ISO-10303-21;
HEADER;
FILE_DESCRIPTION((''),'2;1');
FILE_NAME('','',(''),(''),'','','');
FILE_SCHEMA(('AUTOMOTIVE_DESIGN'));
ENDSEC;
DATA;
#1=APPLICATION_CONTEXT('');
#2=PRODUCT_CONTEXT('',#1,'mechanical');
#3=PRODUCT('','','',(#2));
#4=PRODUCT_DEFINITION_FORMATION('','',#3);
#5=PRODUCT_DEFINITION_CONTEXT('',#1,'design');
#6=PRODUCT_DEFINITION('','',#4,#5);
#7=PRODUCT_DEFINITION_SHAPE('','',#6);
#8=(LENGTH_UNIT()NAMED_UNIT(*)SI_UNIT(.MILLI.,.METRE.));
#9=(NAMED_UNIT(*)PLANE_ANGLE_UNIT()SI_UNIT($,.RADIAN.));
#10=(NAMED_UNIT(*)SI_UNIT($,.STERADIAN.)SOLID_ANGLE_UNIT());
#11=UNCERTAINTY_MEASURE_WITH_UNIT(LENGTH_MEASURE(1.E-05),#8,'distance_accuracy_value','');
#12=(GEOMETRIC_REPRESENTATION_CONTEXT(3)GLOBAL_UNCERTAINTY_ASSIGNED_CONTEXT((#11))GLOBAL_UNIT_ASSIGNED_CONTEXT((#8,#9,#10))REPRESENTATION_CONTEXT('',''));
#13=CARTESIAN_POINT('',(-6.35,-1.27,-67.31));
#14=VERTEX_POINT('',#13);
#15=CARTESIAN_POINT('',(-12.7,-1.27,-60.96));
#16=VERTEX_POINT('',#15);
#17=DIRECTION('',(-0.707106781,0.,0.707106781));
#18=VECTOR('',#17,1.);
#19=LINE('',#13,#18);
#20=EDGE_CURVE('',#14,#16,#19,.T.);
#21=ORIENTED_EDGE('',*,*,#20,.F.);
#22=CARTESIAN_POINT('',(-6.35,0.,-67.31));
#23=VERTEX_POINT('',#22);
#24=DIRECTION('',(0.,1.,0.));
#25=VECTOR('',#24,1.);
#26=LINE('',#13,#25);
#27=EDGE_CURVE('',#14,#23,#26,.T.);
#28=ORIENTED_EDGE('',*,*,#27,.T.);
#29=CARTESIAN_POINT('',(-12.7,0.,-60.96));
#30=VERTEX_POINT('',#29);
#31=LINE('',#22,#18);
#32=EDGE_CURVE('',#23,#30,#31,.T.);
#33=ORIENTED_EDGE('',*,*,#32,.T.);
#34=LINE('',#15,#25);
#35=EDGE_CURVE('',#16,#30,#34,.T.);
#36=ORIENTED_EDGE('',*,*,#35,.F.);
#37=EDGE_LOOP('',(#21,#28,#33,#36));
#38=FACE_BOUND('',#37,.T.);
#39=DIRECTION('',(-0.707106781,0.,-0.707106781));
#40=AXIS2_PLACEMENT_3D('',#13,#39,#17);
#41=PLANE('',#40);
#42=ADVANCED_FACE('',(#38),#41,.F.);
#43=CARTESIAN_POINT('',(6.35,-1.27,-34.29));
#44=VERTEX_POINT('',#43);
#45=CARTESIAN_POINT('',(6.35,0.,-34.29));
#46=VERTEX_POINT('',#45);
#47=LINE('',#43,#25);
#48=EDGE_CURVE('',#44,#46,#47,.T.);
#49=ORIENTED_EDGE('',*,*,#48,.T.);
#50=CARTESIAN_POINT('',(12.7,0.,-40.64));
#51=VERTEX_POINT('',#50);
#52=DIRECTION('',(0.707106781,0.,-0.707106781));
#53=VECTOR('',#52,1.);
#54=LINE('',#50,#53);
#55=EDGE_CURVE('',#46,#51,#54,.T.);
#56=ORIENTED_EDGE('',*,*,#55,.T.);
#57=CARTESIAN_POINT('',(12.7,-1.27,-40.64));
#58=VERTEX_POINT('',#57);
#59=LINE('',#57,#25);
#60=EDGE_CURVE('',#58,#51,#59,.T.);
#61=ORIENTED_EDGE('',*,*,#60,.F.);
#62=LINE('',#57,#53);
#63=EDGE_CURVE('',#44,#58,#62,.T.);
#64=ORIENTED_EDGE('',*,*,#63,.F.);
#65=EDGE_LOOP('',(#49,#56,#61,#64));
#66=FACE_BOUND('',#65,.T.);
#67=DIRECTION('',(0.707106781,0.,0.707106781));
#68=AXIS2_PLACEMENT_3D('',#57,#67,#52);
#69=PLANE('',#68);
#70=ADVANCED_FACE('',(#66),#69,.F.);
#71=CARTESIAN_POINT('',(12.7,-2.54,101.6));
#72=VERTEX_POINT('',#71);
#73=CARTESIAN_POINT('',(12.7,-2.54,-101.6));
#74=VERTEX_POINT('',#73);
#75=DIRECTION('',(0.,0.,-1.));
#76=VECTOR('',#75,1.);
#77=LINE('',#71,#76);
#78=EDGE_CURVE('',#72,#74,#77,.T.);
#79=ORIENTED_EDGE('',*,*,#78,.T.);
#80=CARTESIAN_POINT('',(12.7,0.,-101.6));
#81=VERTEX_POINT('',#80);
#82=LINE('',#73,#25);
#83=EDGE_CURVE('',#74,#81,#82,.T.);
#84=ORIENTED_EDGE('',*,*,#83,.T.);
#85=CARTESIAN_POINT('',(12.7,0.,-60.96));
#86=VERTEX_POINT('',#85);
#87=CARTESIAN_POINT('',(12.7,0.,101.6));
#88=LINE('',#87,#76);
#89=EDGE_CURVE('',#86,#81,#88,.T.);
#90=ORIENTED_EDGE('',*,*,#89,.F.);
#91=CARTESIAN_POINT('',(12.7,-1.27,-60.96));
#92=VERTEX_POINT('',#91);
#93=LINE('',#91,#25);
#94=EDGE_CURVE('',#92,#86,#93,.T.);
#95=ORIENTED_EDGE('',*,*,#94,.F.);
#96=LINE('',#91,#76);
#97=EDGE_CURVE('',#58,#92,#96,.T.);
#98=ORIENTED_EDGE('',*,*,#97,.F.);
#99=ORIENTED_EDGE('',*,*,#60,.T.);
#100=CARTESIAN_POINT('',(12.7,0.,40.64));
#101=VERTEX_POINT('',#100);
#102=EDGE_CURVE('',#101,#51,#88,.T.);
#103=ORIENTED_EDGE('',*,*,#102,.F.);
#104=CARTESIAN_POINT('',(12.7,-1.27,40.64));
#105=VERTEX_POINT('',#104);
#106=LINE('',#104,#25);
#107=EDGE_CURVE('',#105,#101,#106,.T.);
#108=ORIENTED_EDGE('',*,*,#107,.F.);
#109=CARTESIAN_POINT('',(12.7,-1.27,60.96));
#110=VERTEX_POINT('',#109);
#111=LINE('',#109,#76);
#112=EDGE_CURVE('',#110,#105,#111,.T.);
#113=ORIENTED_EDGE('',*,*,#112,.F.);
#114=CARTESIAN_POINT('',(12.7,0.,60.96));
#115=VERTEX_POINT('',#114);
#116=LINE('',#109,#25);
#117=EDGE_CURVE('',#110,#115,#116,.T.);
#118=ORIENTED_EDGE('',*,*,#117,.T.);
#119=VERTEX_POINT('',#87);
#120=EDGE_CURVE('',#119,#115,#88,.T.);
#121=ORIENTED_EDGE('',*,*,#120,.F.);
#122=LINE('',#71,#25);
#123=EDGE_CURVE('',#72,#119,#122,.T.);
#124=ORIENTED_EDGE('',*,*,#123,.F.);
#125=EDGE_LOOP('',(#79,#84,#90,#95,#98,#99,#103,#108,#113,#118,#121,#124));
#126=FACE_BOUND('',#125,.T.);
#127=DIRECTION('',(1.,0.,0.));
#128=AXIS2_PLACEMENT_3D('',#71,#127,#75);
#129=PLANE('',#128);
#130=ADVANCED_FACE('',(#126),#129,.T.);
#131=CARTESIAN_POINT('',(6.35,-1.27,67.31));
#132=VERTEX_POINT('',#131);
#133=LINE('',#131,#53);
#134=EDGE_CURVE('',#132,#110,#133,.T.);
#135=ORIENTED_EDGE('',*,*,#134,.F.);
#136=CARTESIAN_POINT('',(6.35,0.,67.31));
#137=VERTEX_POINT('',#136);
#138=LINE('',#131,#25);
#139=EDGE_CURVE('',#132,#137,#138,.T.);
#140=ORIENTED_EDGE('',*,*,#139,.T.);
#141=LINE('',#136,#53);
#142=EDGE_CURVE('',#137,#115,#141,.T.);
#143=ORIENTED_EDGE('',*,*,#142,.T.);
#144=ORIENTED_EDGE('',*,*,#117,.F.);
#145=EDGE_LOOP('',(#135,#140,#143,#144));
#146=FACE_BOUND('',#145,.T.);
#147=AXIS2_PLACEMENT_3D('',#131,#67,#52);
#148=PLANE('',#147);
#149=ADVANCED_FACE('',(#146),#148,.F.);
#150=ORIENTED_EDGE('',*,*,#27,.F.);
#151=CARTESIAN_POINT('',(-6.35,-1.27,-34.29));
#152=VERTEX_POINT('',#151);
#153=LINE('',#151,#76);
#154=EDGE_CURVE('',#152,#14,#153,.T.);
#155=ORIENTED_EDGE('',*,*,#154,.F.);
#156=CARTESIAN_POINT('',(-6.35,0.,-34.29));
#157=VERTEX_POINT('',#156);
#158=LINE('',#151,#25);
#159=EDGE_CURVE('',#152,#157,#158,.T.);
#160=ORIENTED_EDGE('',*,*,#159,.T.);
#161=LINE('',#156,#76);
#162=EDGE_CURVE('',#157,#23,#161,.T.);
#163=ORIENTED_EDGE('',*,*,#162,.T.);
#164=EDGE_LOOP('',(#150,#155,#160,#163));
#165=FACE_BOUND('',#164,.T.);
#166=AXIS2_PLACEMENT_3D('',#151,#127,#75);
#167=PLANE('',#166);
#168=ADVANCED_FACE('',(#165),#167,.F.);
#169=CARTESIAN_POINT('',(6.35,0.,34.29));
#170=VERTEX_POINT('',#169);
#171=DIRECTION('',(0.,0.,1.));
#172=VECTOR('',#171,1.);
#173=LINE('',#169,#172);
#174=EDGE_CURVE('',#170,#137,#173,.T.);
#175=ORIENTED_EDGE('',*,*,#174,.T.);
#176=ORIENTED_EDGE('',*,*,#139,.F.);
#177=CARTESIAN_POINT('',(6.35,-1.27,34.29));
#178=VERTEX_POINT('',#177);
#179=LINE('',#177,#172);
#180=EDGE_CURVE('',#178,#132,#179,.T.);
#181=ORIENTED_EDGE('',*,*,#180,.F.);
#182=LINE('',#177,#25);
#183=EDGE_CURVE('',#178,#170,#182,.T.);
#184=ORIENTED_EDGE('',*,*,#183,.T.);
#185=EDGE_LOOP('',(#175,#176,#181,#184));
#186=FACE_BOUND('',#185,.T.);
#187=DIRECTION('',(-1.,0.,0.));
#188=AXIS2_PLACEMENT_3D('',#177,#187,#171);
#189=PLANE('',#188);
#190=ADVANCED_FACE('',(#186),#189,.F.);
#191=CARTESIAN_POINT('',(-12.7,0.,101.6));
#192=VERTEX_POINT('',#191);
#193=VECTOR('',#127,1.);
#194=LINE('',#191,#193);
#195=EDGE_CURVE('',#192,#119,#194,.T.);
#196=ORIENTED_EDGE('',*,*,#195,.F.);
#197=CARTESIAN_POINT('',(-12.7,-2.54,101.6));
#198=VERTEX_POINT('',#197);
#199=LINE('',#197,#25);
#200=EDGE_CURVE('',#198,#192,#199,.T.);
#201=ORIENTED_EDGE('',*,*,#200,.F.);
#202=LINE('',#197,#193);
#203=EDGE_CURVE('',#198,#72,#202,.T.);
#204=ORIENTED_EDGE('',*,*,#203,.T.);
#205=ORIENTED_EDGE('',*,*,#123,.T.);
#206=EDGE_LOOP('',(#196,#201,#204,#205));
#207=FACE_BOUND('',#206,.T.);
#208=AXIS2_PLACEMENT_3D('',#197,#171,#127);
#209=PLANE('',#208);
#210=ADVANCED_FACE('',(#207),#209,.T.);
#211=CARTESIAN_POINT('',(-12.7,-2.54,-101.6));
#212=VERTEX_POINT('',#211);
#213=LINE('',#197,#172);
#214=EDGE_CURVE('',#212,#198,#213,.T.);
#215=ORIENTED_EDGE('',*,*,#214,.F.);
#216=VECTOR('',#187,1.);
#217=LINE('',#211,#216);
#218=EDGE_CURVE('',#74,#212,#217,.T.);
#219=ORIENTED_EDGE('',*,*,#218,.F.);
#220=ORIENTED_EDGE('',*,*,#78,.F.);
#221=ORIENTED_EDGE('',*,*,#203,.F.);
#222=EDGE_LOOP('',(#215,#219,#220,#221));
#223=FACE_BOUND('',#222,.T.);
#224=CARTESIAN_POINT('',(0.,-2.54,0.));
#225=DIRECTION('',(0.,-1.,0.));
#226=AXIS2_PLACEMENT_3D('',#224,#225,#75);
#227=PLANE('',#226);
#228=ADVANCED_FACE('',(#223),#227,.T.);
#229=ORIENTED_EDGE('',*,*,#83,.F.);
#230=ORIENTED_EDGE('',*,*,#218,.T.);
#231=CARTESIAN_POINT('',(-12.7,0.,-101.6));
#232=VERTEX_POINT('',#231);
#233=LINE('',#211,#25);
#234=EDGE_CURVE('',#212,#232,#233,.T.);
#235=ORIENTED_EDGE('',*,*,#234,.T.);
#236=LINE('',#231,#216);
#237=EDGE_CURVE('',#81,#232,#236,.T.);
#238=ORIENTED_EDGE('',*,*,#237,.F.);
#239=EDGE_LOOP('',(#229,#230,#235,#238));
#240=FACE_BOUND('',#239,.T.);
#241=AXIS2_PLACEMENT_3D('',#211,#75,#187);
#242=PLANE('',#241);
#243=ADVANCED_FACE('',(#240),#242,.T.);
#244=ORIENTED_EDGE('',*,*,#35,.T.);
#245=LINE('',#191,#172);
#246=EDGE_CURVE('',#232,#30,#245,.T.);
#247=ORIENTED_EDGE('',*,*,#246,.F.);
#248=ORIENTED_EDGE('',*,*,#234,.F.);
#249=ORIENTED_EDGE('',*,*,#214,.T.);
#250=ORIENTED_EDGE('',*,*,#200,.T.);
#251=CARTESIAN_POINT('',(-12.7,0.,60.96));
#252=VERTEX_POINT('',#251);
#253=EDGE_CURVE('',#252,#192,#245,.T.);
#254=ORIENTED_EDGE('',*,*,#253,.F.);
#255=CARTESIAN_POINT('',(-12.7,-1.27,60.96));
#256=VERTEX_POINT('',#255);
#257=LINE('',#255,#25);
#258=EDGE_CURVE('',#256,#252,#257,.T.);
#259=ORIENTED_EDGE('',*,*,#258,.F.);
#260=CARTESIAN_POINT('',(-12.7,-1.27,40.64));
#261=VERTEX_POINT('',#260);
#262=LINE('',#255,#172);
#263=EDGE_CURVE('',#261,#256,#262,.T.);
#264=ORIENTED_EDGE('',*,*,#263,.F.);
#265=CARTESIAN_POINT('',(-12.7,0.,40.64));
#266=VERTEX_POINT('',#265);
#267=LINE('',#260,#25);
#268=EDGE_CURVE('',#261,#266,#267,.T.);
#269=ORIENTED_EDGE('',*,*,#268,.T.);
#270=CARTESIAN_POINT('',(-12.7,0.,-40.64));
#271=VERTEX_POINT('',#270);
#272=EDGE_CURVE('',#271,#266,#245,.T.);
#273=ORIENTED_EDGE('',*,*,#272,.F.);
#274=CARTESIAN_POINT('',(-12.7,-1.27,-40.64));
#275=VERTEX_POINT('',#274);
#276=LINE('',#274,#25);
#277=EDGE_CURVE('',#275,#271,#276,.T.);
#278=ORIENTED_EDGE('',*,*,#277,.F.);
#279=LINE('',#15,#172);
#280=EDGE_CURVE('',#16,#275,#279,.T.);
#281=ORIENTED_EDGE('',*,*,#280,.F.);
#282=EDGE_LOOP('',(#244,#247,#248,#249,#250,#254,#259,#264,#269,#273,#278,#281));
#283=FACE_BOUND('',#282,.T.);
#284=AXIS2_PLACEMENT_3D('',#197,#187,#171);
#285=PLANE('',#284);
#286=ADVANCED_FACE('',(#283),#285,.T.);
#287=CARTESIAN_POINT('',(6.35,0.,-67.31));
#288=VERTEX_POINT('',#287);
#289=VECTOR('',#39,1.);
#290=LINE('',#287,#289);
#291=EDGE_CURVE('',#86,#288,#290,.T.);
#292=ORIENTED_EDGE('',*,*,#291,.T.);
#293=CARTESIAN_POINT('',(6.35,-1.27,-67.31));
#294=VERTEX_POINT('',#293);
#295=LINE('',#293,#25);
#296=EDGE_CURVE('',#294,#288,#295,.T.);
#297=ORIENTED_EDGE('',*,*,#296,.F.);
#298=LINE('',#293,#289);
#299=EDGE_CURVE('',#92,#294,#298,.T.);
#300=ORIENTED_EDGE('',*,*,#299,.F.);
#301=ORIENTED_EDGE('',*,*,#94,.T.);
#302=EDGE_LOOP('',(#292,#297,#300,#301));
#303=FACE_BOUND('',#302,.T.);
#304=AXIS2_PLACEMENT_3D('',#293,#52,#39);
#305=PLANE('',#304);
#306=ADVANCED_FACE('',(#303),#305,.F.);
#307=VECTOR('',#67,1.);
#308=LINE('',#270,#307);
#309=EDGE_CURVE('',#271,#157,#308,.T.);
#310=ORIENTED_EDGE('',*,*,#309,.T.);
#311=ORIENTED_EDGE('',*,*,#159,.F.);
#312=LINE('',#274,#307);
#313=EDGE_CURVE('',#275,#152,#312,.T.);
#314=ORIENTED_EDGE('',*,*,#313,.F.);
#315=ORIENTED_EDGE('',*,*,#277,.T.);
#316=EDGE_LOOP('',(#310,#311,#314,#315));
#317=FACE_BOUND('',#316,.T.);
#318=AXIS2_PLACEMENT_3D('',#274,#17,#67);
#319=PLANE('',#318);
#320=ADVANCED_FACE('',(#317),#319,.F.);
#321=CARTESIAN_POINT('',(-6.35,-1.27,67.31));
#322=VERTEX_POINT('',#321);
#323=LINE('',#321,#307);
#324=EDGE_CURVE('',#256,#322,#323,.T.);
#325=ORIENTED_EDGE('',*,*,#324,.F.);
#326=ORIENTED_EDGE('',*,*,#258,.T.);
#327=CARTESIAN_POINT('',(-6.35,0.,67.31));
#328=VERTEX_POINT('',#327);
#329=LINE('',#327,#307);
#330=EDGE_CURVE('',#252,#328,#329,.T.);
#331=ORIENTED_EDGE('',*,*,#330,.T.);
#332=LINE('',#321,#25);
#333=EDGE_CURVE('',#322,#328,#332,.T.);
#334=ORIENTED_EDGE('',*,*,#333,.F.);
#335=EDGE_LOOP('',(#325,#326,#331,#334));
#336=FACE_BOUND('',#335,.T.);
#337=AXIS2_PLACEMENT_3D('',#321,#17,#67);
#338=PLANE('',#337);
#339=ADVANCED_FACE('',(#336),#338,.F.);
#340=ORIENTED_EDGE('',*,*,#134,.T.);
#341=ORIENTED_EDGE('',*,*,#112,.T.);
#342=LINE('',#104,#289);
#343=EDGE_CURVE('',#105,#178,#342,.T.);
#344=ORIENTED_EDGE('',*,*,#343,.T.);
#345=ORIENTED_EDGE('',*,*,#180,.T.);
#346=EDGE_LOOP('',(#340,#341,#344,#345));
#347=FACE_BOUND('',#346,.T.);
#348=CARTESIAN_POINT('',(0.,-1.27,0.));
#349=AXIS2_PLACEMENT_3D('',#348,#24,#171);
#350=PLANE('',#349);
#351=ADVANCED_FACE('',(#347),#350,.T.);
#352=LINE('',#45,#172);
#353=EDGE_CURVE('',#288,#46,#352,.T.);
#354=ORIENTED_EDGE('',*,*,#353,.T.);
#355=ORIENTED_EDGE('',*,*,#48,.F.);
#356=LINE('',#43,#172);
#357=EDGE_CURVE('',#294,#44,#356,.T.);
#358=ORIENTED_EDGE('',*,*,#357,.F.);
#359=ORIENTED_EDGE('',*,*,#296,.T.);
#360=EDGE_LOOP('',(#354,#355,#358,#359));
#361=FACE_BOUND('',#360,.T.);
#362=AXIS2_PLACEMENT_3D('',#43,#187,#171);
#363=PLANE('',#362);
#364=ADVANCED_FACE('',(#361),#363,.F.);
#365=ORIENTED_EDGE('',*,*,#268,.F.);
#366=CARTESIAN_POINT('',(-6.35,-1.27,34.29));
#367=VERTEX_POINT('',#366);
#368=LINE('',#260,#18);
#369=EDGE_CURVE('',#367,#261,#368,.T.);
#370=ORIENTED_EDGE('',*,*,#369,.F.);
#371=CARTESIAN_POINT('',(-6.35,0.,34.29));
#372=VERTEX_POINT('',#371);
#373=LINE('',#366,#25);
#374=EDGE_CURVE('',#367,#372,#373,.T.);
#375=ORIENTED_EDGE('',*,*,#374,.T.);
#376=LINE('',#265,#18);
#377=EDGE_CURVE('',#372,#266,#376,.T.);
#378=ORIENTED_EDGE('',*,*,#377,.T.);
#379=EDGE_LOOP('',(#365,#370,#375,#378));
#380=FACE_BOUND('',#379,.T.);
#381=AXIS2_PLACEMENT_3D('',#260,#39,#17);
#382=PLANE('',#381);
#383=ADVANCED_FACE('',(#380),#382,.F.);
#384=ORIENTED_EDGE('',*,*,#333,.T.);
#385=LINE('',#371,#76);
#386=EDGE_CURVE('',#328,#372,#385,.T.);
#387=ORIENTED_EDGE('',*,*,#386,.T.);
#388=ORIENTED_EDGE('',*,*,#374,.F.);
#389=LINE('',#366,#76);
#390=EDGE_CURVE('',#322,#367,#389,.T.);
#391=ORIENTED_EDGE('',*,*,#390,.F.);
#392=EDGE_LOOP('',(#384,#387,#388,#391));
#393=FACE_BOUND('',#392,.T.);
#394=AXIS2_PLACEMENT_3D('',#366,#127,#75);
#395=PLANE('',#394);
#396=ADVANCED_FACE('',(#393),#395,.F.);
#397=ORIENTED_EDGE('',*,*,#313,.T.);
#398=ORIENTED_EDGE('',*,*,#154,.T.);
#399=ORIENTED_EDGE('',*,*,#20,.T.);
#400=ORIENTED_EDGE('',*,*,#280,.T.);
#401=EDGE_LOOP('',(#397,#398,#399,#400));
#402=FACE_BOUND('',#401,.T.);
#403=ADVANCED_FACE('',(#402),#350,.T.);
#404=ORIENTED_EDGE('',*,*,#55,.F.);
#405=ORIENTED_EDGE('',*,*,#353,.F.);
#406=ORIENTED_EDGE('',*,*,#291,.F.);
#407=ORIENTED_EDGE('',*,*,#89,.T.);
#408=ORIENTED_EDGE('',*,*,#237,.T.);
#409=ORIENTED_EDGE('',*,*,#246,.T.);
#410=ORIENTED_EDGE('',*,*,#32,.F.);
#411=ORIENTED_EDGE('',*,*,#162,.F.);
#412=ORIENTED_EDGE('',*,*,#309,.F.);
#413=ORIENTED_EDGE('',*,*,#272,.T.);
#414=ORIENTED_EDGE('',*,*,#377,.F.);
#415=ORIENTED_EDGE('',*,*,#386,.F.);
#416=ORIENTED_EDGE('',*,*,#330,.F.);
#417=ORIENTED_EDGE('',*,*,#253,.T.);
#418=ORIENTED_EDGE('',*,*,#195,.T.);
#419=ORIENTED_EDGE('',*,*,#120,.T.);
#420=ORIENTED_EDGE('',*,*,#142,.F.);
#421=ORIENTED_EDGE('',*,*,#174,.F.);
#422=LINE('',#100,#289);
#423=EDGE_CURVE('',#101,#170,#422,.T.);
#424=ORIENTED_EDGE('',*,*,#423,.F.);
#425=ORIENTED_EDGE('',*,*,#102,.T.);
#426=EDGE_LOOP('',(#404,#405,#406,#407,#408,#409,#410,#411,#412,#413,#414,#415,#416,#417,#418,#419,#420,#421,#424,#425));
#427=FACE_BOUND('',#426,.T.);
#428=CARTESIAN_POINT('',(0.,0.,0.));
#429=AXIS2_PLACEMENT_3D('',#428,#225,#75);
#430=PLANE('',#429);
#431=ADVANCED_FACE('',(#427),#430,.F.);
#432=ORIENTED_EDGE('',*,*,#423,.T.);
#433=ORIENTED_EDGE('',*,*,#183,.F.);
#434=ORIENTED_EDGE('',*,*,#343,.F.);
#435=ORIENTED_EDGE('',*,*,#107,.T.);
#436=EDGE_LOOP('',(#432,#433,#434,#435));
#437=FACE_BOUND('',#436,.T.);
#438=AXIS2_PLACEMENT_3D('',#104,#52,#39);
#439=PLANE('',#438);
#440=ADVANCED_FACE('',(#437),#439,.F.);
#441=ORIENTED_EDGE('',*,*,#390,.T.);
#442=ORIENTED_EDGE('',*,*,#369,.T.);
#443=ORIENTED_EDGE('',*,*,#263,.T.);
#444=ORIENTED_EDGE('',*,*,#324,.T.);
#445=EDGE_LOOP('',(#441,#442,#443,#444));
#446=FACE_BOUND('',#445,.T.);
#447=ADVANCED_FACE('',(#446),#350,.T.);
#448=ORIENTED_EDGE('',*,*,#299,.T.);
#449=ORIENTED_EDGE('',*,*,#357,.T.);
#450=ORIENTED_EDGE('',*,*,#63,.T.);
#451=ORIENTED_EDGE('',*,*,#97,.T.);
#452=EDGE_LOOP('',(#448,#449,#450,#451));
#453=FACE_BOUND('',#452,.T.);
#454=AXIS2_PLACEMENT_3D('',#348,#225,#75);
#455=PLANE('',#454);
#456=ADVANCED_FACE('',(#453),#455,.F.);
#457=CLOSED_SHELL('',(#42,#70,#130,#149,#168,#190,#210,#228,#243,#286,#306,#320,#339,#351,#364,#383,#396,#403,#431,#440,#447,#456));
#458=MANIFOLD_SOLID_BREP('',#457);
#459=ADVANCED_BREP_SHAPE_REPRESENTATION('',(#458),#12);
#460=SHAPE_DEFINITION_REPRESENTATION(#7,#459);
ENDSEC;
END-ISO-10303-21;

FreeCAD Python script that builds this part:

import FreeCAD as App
import Part
import Sketcher
Q = App.Units.Quantity

doc = App.newDocument("Part")
body = doc.addObject("PartDesign::Body", "Body")

# Sketch on XZ plane
sketch1 = body.newObject("Sketcher::SketchObject", "Sketch")
sketch1.AttachmentSupport = (doc.getObject("XZ_Plane"), [""])
sketch1.MapMode = "FlatFace"
sketch1.addGeometry([
    Part.LineSegment(App.Vector(-13, -102, 0), App.Vector(-13, 102, 0)),
    Part.LineSegment(App.Vector(-13, 102, 0), App.Vector(13, 102, 0)),
    Part.LineSegment(App.Vector(13, 102, 0), App.Vector(13, -102, 0)),
    Part.LineSegment(App.Vector(13, -102, 0), App.Vector(-13, -102, 0)),
], False)
sketch1.addConstraint([
    Sketcher.Constraint("Coincident", 0, 2, 1, 1),
    Sketcher.Constraint("Coincident", 1, 2, 2, 1),
    Sketcher.Constraint("Coincident", 2, 2, 3, 1),
    Sketcher.Constraint("Coincident", 3, 2, 0, 1),
    Sketcher.Constraint("Vertical", 0),
    Sketcher.Constraint("Horizontal", 1),
    Sketcher.Constraint("Vertical", 2),
    Sketcher.Constraint("Horizontal", 3),
    Sketcher.Constraint("Symmetric", 0, 2, 2, 2, -1, 1),
    Sketcher.Constraint("DistanceX", 1, 1, 1, 2, Q("1 in")),
    Sketcher.Constraint("DistanceY", 0, 1, 0, 2, Q("8 in")),
])
pad1 = body.newObject("PartDesign::Pad", "Pad")
pad1.Profile = sketch1
pad1.Length = Q("0.1 in")

# Sketch on XZ plane
sketch2 = body.newObject("Sketcher::SketchObject", "Sketch001")
sketch2.AttachmentSupport = (doc.getObject("XZ_Plane"), [""])
sketch2.MapMode = "FlatFace"
sketch2.addGeometry([
    Part.LineSegment(App.Vector(6, -34, 0), App.Vector(13, -41, 0)),  # 0
    Part.LineSegment(App.Vector(13, -41, 0), App.Vector(13, -61, 0)),  # 1
    Part.LineSegment(App.Vector(13, -61, 0), App.Vector(6, -67, 0)),  # 2
    Part.LineSegment(App.Vector(6, -67, 0), App.Vector(6, -34, 0)),  # 3
    Part.LineSegment(App.Vector(-6, -67, 0), App.Vector(-13, -61, 0)),  # 4
    Part.LineSegment(App.Vector(-13, -61, 0), App.Vector(-13, -41, 0)),  # 5
    Part.LineSegment(App.Vector(-13, -41, 0), App.Vector(-6, -34, 0)),  # 6
    Part.LineSegment(App.Vector(-6, -34, 0), App.Vector(-6, -67, 0)),  # 7
    Part.LineSegment(App.Vector(6, 67, 0), App.Vector(13, 61, 0)),  # 8
    Part.LineSegment(App.Vector(13, 61, 0), App.Vector(13, 41, 0)),  # 9
    Part.LineSegment(App.Vector(13, 41, 0), App.Vector(6, 34, 0)),  # 10
    Part.LineSegment(App.Vector(6, 34, 0), App.Vector(6, 67, 0)),  # 11
    Part.LineSegment(App.Vector(-6, 67, 0), App.Vector(-6, 34, 0)),  # 12
    Part.LineSegment(App.Vector(-6, 34, 0), App.Vector(-13, 41, 0)),  # 13
    Part.LineSegment(App.Vector(-13, 41, 0), App.Vector(-13, 61, 0)),  # 14
    Part.LineSegment(App.Vector(-13, 61, 0), App.Vector(-6, 67, 0)),  # 15
], False)
sketch2.addConstraint([
    Sketcher.Constraint("Coincident", 0, 2, 1, 1),
    Sketcher.Constraint("Coincident", 1, 2, 2, 1),
    Sketcher.Constraint("Coincident", 2, 2, 3, 1),
    Sketcher.Constraint("Coincident", 3, 2, 0, 1),
    Sketcher.Constraint("Coincident", 4, 2, 5, 1),
    Sketcher.Constraint("Coincident", 5, 2, 6, 1),
    Sketcher.Constraint("Coincident", 6, 2, 7, 1),
    Sketcher.Constraint("Coincident", 7, 2, 4, 1),
    Sketcher.Constraint("Coincident", 8, 2, 9, 1),
    Sketcher.Constraint("Coincident", 9, 2, 10, 1),
    Sketcher.Constraint("Coincident", 10, 2, 11, 1),
    Sketcher.Constraint("Coincident", 11, 2, 8, 1),
    Sketcher.Constraint("Coincident", 12, 2, 13, 1),
    Sketcher.Constraint("Coincident", 13, 2, 14, 1),
    Sketcher.Constraint("Coincident", 14, 2, 15, 1),
    Sketcher.Constraint("Coincident", 15, 2, 12, 1),
    Sketcher.Constraint("Vertical", 1),
    Sketcher.Constraint("Vertical", 3),
    Sketcher.Constraint("Vertical", 5),
    Sketcher.Constraint("Vertical", 7),
    Sketcher.Constraint("Vertical", 9),
    Sketcher.Constraint("Vertical", 11),
    Sketcher.Constraint("Vertical", 12),
    Sketcher.Constraint("Vertical", 14),
    Sketcher.Constraint("Symmetric", 4, 2, 8, 2, -1, 1),
    Sketcher.Constraint("Symmetric", 6, 2, 10, 2, -1, 1),
    Sketcher.Constraint("Symmetric", 3, 2, 12, 2, -1, 1),
    Sketcher.Constraint("Symmetric", 0, 2, 13, 2, -1, 1),
    Sketcher.Constraint("Symmetric", 1, 2, 4, 2, -2),
    Sketcher.Constraint("Symmetric", 3, 2, 6, 2, -2),
    Sketcher.Constraint("Perpendicular", 0, 2),
    Sketcher.Constraint("Perpendicular", 2, 4),
    Sketcher.Constraint("Perpendicular", 4, 6),
    Sketcher.Constraint("Perpendicular", 6, 8),
    Sketcher.Constraint("Perpendicular", 8, 10),
    Sketcher.Constraint("Perpendicular", 13, 15),
    Sketcher.Constraint("Horizontal", 0, 2, 5, 2),
    Sketcher.Constraint("Horizontal", 8, 2, 14, 2),
    Sketcher.Constraint("DistanceY", 1, 2, 1, 1, Q("0.8 in")),
    Sketcher.Constraint("DistanceY", 3, 1, 3, 2, Q("1.3 in")),
    Sketcher.Constraint("DistanceX", 4, 2, 1, 2, Q("1 in")),
    Sketcher.Constraint("DistanceY", 0, 2, 8, 2, Q("4 in")),
])
pocket1 = body.newObject("PartDesign::Pocket", "Pocket")
pocket1.Profile = sketch2
pocket1.Length = Q("0.05 in")
pocket1.Reversed = True

doc.recompute()
